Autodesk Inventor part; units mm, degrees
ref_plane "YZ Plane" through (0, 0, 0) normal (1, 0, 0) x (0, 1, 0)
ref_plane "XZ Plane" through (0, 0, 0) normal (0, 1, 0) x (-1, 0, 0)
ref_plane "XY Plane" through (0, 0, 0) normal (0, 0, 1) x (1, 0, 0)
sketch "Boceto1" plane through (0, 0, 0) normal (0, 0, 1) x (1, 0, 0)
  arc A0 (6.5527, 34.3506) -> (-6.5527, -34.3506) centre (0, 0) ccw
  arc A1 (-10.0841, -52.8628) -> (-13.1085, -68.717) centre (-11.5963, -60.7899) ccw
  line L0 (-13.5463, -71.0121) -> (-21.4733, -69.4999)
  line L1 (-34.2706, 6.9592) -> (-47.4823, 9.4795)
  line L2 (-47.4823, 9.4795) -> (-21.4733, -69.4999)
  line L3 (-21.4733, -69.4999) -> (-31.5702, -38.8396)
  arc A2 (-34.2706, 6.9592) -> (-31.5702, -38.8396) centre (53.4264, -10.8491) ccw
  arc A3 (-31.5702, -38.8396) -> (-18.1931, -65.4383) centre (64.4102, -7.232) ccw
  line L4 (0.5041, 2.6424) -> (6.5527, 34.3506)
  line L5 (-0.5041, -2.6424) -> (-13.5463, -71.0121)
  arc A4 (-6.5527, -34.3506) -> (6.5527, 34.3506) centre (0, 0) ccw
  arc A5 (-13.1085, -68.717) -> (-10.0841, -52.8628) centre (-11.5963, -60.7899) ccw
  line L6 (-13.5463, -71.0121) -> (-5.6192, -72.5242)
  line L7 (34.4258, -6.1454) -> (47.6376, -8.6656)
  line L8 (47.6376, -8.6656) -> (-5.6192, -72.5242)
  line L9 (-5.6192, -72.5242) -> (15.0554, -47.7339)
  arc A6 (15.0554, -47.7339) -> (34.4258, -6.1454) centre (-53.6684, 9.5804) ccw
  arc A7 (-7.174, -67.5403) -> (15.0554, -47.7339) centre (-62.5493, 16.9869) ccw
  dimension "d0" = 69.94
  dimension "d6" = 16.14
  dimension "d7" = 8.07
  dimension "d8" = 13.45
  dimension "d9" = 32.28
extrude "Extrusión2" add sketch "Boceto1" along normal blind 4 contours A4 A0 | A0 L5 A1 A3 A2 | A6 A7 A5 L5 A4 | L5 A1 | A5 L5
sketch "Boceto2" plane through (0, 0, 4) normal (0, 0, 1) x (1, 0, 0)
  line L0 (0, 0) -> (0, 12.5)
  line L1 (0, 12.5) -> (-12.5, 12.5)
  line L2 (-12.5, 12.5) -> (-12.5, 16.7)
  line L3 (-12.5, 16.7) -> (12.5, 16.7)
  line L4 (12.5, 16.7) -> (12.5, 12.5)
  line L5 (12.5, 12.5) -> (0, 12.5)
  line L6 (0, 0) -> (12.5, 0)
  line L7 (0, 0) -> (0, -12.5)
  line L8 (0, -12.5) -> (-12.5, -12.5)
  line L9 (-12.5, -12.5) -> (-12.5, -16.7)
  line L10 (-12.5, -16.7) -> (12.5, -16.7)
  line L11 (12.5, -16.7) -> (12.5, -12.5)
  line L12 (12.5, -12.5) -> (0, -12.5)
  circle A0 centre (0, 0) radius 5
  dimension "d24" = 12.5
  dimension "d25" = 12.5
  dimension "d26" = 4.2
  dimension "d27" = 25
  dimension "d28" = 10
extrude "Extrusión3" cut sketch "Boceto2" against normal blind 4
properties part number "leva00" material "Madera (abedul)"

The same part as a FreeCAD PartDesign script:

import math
import FreeCAD as App
import Part
import Sketcher
from FreeCAD import Vector


def add_polygon(sketch, points):
    """Adds a closed chain of lines whose ends are joined by coincident constraints."""
    first, n = sketch.GeometryCount, len(points)
    for a, b in zip(points, points[1:] + points[:1]):
        sketch.addGeometry(Part.LineSegment(App.Vector(*a, 0), App.Vector(*b, 0)), False)
    for i in range(n):
        sketch.addConstraint(Sketcher.Constraint("Coincident", first + i, 2, first + (i + 1) % n, 1))

doc = App.newDocument("Part")
body = doc.addObject("PartDesign::Body", "Body")

sketch1 = body.newObject("Sketcher::SketchObject", "Sketch")
sketch1.AttachmentSupport = (doc.getObject("XY_Plane"), [""])
sketch1.MapMode = "FlatFace"
sketch1.addGeometry([
    Part.ArcOfCircle(Part.Circle(Vector(0, 0, 0), Vector(0, 0, 1), 34.97001), math.radians(-10.121342), math.radians(168.521245)),
    Part.ArcOfCircle(Part.Circle(Vector(53.4264, -10.8491, 0), Vector(0, 0, 1), 89.486867), math.radians(168.521242), math.radians(198.227395)),
    Part.ArcOfCircle(Part.Circle(Vector(64.4102, -7.232, 0), Vector(0, 0, 1), 101.050866), math.radians(-161.77261), math.radians(-144.829615)),
    Part.ArcOfCircle(Part.Circle(Vector(-11.5963, -60.7899, 0), Vector(0, 0, 1), 8.070047), math.radians(-144.829765), math.radians(-56.770521)),
    Part.ArcOfCircle(Part.Circle(Vector(-62.5493, 16.9869, 0), Vector(0, 0, 1), 101.050836), math.radians(-56.770466), math.radians(-39.827445)),
    Part.ArcOfCircle(Part.Circle(Vector(-53.6684, 9.5804, 0), Vector(0, 0, 1), 89.486813), math.radians(-39.827443), math.radians(-10.121327)),
], False)
sketch1.addConstraint([
    Sketcher.Constraint("Coincident", 0, 2, 1, 1),
    Sketcher.Constraint("Coincident", 1, 2, 2, 1),
    Sketcher.Constraint("Coincident", 2, 2, 3, 1),
    Sketcher.Constraint("Coincident", 3, 2, 4, 1),
    Sketcher.Constraint("Coincident", 4, 2, 5, 1),
    Sketcher.Constraint("Coincident", 5, 2, 0, 1),
    Sketcher.Constraint("Coincident", 0, 3, -1, 1),
    Sketcher.Constraint("Radius", 0, 34.97),
    Sketcher.Constraint("Radius", 3, 8.07),
    Sketcher.Constraint("Radius", 1, 89.4869),
    Sketcher.Constraint("Radius", 2, 101.0509),
    Sketcher.Constraint("Radius", 4, 101.0508),
    Sketcher.Constraint("Radius", 5, 89.4868),
    Sketcher.Constraint("DistanceY", 3, 3, -1, 1, 60.79),
    Sketcher.Constraint("DistanceY", 1, 2, 5, 3, 48.42),
    Sketcher.Constraint("DistanceY", 1, 3, -1, 1, 10.849),
    Sketcher.Constraint("DistanceY", 2, 3, -1, 1, 7.232),
    Sketcher.Constraint("DistanceY", -1, 1, 4, 3, 16.987),
    Sketcher.Constraint("DistanceX", 2, 2, -1, 1, 18.193),
    Sketcher.Constraint("DistanceX", 3, 2, -1, 1, 7.174),
    Sketcher.Constraint("DistanceY", 4, 2, -1, 1, 47.734),
    Sketcher.Constraint("DistanceY", 3, 3, 0, 2, 67.749),
    Sketcher.Constraint("DistanceX", -1, 1, 5, 2, 34.4258),
])
pad1 = body.newObject("PartDesign::Pad", "Pad")
pad1.Profile = sketch1
pad1.Length = 4

sketch2 = body.newObject("Sketcher::SketchObject", "Sketch001")
sketch2.AttachmentSupport = (doc.getObject("XY_Plane"), [""])
sketch2.MapMode = "FlatFace"
sketch2.AttachmentOffset = App.Placement(Vector(0, 0, 4), App.Rotation())
sketch2.addGeometry(Part.Circle(Vector(0, 0, 0), Vector(0, 0, 1), 5), False)
add_polygon(sketch2, [(-12.5, 12.5), (12.5, 12.5), (12.5, 16.7), (-12.5, 16.7)])
add_polygon(sketch2, [(12.5, -12.5), (-12.5, -12.5), (-12.5, -16.7), (12.5, -16.7)])
sketch2.addConstraint([
    Sketcher.Constraint("Horizontal", 1),
    Sketcher.Constraint("Vertical", 2),
    Sketcher.Constraint("Horizontal", 3),
    Sketcher.Constraint("Vertical", 4),
    Sketcher.Constraint("Horizontal", 5),
    Sketcher.Constraint("Vertical", 6),
    Sketcher.Constraint("Horizontal", 7),
    Sketcher.Constraint("Vertical", 8),
    Sketcher.Constraint("Coincident", 0, 3, -1, 1),
    Sketcher.Constraint("Symmetric", 1, 2, 5, 2, -1, 1),
    Sketcher.Constraint("Symmetric", 3, 2, 7, 2, -1, 1),
    Sketcher.Constraint("Vertical", 4, 2, 5, 2),
    Sketcher.Constraint("Diameter", 0, 10.0),
    Sketcher.Constraint("DistanceX", 1, 1, 1, 2, 25.0),
    Sketcher.Constraint("DistanceY", 2, 1, 2, 2, 4.2),
    Sketcher.Constraint("DistanceY", 5, 2, 4, 2, 25.0),
])
pocket1 = body.newObject("PartDesign::Pocket", "Pocket")
pocket1.Profile = sketch2
pocket1.Length = 4

doc.recompute()
